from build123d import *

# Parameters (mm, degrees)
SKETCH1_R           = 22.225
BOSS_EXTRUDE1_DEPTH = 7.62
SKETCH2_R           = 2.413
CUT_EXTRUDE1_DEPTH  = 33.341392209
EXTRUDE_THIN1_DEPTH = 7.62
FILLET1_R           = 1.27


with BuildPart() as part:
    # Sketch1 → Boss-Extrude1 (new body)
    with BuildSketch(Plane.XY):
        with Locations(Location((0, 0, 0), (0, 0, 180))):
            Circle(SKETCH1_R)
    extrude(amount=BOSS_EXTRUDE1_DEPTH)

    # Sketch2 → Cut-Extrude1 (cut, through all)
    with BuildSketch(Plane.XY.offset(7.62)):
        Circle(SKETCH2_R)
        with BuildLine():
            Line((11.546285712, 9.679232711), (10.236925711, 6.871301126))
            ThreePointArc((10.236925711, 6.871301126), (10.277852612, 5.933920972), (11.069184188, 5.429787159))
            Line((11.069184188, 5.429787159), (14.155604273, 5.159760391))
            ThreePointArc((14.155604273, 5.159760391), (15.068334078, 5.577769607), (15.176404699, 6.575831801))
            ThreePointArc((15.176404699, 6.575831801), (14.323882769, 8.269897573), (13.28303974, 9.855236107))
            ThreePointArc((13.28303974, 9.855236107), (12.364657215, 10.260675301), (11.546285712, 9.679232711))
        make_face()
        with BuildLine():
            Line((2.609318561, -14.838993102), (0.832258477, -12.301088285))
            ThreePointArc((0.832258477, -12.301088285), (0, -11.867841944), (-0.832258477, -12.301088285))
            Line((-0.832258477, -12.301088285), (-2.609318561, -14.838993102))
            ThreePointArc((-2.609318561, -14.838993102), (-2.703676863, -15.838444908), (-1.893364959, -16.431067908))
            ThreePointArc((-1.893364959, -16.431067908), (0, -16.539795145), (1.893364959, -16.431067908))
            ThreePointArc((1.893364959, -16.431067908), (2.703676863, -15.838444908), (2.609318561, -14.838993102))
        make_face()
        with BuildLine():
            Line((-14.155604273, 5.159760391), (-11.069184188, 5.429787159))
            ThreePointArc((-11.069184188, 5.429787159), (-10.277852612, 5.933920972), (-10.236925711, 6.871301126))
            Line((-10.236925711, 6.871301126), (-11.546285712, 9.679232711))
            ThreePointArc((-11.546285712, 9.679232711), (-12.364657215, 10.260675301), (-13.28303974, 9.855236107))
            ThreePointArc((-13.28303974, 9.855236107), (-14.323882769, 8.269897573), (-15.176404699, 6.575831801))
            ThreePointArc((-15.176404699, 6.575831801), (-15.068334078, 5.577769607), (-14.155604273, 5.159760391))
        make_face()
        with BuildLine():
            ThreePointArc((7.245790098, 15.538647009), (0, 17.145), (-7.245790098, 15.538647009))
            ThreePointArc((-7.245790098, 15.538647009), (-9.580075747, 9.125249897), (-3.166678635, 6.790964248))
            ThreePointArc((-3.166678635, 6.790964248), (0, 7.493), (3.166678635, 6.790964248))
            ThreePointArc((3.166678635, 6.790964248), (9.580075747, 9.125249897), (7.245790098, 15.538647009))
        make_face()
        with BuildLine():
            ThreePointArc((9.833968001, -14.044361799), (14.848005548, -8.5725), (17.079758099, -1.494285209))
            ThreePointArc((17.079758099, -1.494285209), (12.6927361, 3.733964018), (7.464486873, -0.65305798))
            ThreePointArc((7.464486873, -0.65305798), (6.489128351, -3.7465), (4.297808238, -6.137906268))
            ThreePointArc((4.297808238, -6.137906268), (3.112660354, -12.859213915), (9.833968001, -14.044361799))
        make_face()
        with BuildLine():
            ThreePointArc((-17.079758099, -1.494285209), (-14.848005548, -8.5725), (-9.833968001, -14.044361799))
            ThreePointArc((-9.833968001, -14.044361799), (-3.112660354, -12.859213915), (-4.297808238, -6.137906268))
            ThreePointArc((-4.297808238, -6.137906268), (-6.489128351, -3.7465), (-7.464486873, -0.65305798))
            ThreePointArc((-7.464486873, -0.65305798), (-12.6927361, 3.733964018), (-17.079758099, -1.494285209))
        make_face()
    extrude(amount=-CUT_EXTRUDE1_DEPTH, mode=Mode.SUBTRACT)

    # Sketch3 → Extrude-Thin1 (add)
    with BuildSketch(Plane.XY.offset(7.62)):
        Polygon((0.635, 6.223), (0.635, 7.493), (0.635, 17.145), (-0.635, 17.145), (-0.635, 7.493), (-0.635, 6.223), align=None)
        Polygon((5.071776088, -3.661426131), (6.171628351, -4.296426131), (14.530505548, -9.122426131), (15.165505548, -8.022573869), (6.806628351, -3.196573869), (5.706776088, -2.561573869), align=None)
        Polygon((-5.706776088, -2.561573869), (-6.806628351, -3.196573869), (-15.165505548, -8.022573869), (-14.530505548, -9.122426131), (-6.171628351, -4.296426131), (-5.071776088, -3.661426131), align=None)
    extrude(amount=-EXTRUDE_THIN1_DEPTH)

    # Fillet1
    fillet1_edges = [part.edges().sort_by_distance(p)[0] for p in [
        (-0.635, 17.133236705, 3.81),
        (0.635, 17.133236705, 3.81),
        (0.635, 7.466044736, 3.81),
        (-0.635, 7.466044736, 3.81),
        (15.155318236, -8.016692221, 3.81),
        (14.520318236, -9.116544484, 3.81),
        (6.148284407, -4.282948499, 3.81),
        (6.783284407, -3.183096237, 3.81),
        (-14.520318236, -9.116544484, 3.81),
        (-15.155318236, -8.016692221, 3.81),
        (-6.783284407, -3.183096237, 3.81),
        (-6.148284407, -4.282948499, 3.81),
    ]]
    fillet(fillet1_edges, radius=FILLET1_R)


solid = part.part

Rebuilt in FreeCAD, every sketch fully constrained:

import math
import FreeCAD as App
import Part
import Sketcher

V = App.Vector
Q = App.Units.Quantity


def edges_at(feature, points):
    """Names of the edges that pass closest to the given points."""
    edges = feature.Shape.Edges
    near = lambda p: min(range(len(edges)), key=lambda i: edges[i].distToShape(Part.Vertex(*p))[0])
    return sorted({f"Edge{near(p) + 1}" for p in points})

doc = App.newDocument("Part")
body = doc.addObject("PartDesign::Body", "Body")

sketch1 = doc.addObject("Sketcher::SketchObject", "Sketch")
body.addObject(sketch1)
sketch1.AttachmentSupport = (doc.XY_Plane, [""])
sketch1.MapMode = "FlatFace"
sketch1.addGeometry(Part.Circle(V(0, 0, 0), V(0, 0, 1), 22.225), False)
sketch1.addConstraint([
    Sketcher.Constraint("Coincident", 0, 3, -1, 1),
    Sketcher.Constraint("Diameter", 0, Q("1.75 in")),
])
pad1 = doc.addObject("PartDesign::Pad", "Pad")
body.addObject(pad1)
pad1.Profile = sketch1
pad1.Length = Q("0.3 in")

sketch2 = doc.addObject("Sketcher::SketchObject", "Sketch001")
body.addObject(sketch2)
sketch2.AttachmentSupport = (doc.XY_Plane, [""])
sketch2.MapMode = "FlatFace"
sketch2.AttachmentOffset = App.Placement(V(0, 0, 0.3 * 25.4), App.Rotation())
sketch2.addGeometry([
    Part.Circle(V(0, 0, 0), V(0, 0, 1), 2.413),
    Part.LineSegment(V(11.546286, 9.679233, 0), V(10.236926, 6.871301, 0)),
    Part.ArcOfCircle(Part.Circle(V(11.157734, 6.441921, 0), V(0, 0, 1), 1.016), math.radians(155), math.radians(265)),
    Part.LineSegment(V(11.069184, 5.429787, 0), V(14.155604, 5.15976, 0)),
    Part.ArcOfCircle(Part.Circle(V(14.244155, 6.171894, 0), V(0, 0, 1), 1.016), math.radians(-95), math.radians(23.426753)),
    Part.ArcOfCircle(Part.Circle(V(0, 0, 0), V(0, 0, 1), 16.539795), math.radians(23.426753), math.radians(36.573247)),
    Part.ArcOfCircle(Part.Circle(V(12.467094, 9.249853, 0), V(0, 0, 1), 1.016), math.radians(36.573247), math.radians(155)),
    Part.LineSegment(V(2.609319, -14.838993, 0), V(0.832258, -12.301088, 0)),
    Part.ArcOfCircle(Part.Circle(V(0, -12.883842, 0), V(0, 0, 1), 1.016), math.radians(35), math.radians(145)),
    Part.LineSegment(V(-0.832258, -12.301088, 0), V(-2.609319, -14.838993, 0)),
    Part.ArcOfCircle(Part.Circle(V(-1.77706, -15.421747, 0), V(0, 0, 1), 1.016), math.radians(145), math.radians(263.426753)),
    Part.ArcOfCircle(Part.Circle(V(0, 0, 0), V(0, 0, 1), 16.539795), math.radians(-96.573247), math.radians(-83.426753)),
    Part.ArcOfCircle(Part.Circle(V(1.77706, -15.421747, 0), V(0, 0, 1), 1.016), math.radians(-83.426753), math.radians(35)),
    Part.LineSegment(V(-14.155604, 5.15976, 0), V(-11.069184, 5.429787, 0)),
    Part.ArcOfCircle(Part.Circle(V(-11.157734, 6.441921, 0), V(0, 0, 1), 1.016), math.radians(-85), math.radians(25)),
    Part.LineSegment(V(-10.236926, 6.871301, 0), V(-11.546286, 9.679233, 0)),
    Part.ArcOfCircle(Part.Circle(V(-12.467094, 9.249853, 0), V(0, 0, 1), 1.016), math.radians(25), math.radians(143.426753)),
    Part.ArcOfCircle(Part.Circle(V(0, 0, 0), V(0, 0, 1), 16.539795), math.radians(143.426753), math.radians(156.573247)),
    Part.ArcOfCircle(Part.Circle(V(-14.244155, 6.171894, 0), V(0, 0, 1), 1.016), math.radians(156.573247), math.radians(275)),
    Part.ArcOfCircle(Part.Circle(V(0, 0, 0), V(0, 0, 1), 17.145), math.radians(65), math.radians(115)),
    Part.ArcOfCircle(Part.Circle(V(-5.206234, 11.164806, 0), V(0, 0, 1), 4.826), math.radians(115), math.radians(295)),
    Part.ArcOfCircle(Part.Circle(V(0, 0, 0), V(0, 0, 1), 7.493), math.radians(65), math.radians(115)),
    Part.ArcOfCircle(Part.Circle(V(5.206234, 11.164806, 0), V(0, 0, 1), 4.826), math.radians(-115), math.radians(65)),
    Part.ArcOfCircle(Part.Circle(V(0, 0, 0), V(0, 0, 1), 17.145), math.radians(-55), math.radians(-5)),
    Part.ArcOfCircle(Part.Circle(V(12.272122, -1.073672, 0), V(0, 0, 1), 4.826), math.radians(-5), math.radians(175)),
    Part.ArcOfCircle(Part.Circle(V(0, 0, 0), V(0, 0, 1), 7.493), math.radians(-55), math.radians(-5)),
    Part.ArcOfCircle(Part.Circle(V(7.065888, -10.091134, 0), V(0, 0, 1), 4.826), math.radians(125), math.radians(305)),
    Part.ArcOfCircle(Part.Circle(V(0, 0, 0), V(0, 0, 1), 17.145), math.radians(-175), math.radians(-125)),
    Part.ArcOfCircle(Part.Circle(V(-7.065888, -10.091134, 0), V(0, 0, 1), 4.826), math.radians(-125), math.radians(55)),
    Part.ArcOfCircle(Part.Circle(V(0, 0, 0), V(0, 0, 1), 7.493), math.radians(-175), math.radians(-125)),
    Part.ArcOfCircle(Part.Circle(V(-12.272122, -1.073672, 0), V(0, 0, 1), 4.826), math.radians(5), math.radians(185)),
], False)
sketch2.addConstraint([
    Sketcher.Constraint("Tangent", 1, 2, 2, 1),
    Sketcher.Constraint("Tangent", 2, 2, 3, 1),
    Sketcher.Constraint("Tangent", 3, 2, 4, 1),
    Sketcher.Constraint("Tangent", 4, 2, 5, 1),
    Sketcher.Constraint("Tangent", 5, 2, 6, 1),
    Sketcher.Constraint("Tangent", 6, 2, 1, 1),
    Sketcher.Constraint("Tangent", 7, 2, 8, 1),
    Sketcher.Constraint("Tangent", 8, 2, 9, 1),
    Sketcher.Constraint("Tangent", 9, 2, 10, 1),
    Sketcher.Constraint("Tangent", 10, 2, 11, 1),
    Sketcher.Constraint("Tangent", 11, 2, 12, 1),
    Sketcher.Constraint("Tangent", 12, 2, 7, 1),
    Sketcher.Constraint("Tangent", 13, 2, 14, 1),
    Sketcher.Constraint("Tangent", 14, 2, 15, 1),
    Sketcher.Constraint("Tangent", 15, 2, 16, 1),
    Sketcher.Constraint("Tangent", 16, 2, 17, 1),
    Sketcher.Constraint("Tangent", 17, 2, 18, 1),
    Sketcher.Constraint("Tangent", 18, 2, 13, 1),
    Sketcher.Constraint("Tangent", 19, 2, 20, 1),
    Sketcher.Constraint("Tangent", 20, 2, 21, 2),
    Sketcher.Constraint("Tangent", 21, 1, 22, 1),
    Sketcher.Constraint("Tangent", 22, 2, 19, 1),
    Sketcher.Constraint("Tangent", 23, 2, 24, 1),
    Sketcher.Constraint("Tangent", 24, 2, 25, 2),
    Sketcher.Constraint("Tangent", 25, 1, 26, 1),
    Sketcher.Constraint("Tangent", 26, 2, 23, 1),
    Sketcher.Constraint("Tangent", 27, 2, 28, 1),
    Sketcher.Constraint("Tangent", 28, 2, 29, 2),
    Sketcher.Constraint("Tangent", 29, 1, 30, 1),
    Sketcher.Constraint("Tangent", 30, 2, 27, 1),
    Sketcher.Constraint("Coincident", 0, 3, -1, 1),
    Sketcher.Constraint("Coincident", 5, 3, -1, 1),
    Sketcher.Constraint("Coincident", 11, 3, -1, 1),
    Sketcher.Constraint("Coincident", 17, 3, -1, 1),
    Sketcher.Constraint("Coincident", 19, 3, -1, 1),
    Sketcher.Constraint("Coincident", 21, 3, -1, 1),
    Sketcher.Constraint("Coincident", 23, 3, -1, 1),
    Sketcher.Constraint("Coincident", 25, 3, -1, 1),
    Sketcher.Constraint("Coincident", 27, 3, -1, 1),
    Sketcher.Constraint("Coincident", 29, 3, -1, 1),
    Sketcher.Constraint("Equal", 2, 4),
    Sketcher.Constraint("Equal", 4, 6),
    Sketcher.Constraint("Equal", 6, 8),
    Sketcher.Constraint("Equal", 8, 10),
    Sketcher.Constraint("Equal", 5, 11),
    Sketcher.Constraint("Equal", 10, 12),
    Sketcher.Constraint("Equal", 12, 14),
    Sketcher.Constraint("Equal", 14, 16),
    Sketcher.Constraint("Equal", 11, 17),
    Sketcher.Constraint("Equal", 16, 18),
    Sketcher.Constraint("Equal", 19, 23),
    Sketcher.Constraint("Equal", 22, 24),
    Sketcher.Constraint("Equal", 23, 27),
    Sketcher.Constraint("Equal", 26, 28),
    Sketcher.Constraint("Symmetric", 2, 3, 14, 3, -2),
    Sketcher.Constraint("Symmetric", 7, 2, 8, 2, -2),
    Sketcher.Constraint("Horizontal", 6, 3, 16, 3),
    Sketcher.Constraint("Horizontal", 4, 3, 18, 3),
    Sketcher.Constraint("Horizontal", 20, 3, 22, 3),
    Sketcher.Constraint("Horizontal", 26, 3, 28, 3),
    Sketcher.Constraint("Horizontal", 24, 3, 30, 3),
    Sketcher.Constraint("Equal", 1, 3),
    Sketcher.Constraint("Equal", 3, 7),
    Sketcher.Constraint("Diameter", 0, Q("0.19 in")),
    Sketcher.Constraint("Radius", 2, Q("0.04 in")),
    Sketcher.Constraint("Radius", 20, Q("0.19 in")),
    Sketcher.Constraint("Angle", 1, Q("-115 deg")),
    Sketcher.Constraint("Angle", 3, Q("-5 deg")),
    Sketcher.Constraint("Angle", 7, Q("125 deg")),
    Sketcher.Constraint("Radius", 19, Q("0.675 in")),
    Sketcher.Constraint("Radius", 5, Q("16.539795 mm")),
    Sketcher.Constraint("DistanceY", -1, 1, 1, 2, Q("6.871301 mm")),
    Sketcher.Constraint("DistanceX", 14, 3, 20, 3, Q("5.9515 mm")),
    Sketcher.Constraint("DistanceY", 24, 3, -1, 1, Q("1.073672 mm")),
    Sketcher.Constraint("DistanceX", -1, 1, 26, 3, Q("7.065888 mm")),
])
pocket1 = doc.addObject("PartDesign::Pocket", "Pocket")
body.addObject(pocket1)
pocket1.Profile = sketch2
pocket1.Type = "ThroughAll"

sketch3 = doc.addObject("Sketcher::SketchObject", "Sketch002")
body.addObject(sketch3)
sketch3.AttachmentSupport = (doc.XY_Plane, [""])
sketch3.MapMode = "FlatFace"
sketch3.AttachmentOffset = App.Placement(V(0, 0, 0.3 * 25.4), App.Rotation())
sketch3.addGeometry([
    Part.LineSegment(V(0.635, 6.223, 0), V(0.635, 17.145, 0)),
    Part.LineSegment(V(0.635, 17.145, 0), V(-0.635, 17.145, 0)),
    Part.LineSegment(V(-0.635, 17.145, 0), V(-0.635, 6.223, 0)),
    Part.LineSegment(V(-0.635, 6.223, 0), V(0.635, 6.223, 0)),
    Part.LineSegment(V(5.071776, -3.661426, 0), V(6.171628, -4.296426, 0)),
    Part.LineSegment(V(6.171628, -4.296426, 0), V(14.530506, -9.122426, 0)),
    Part.LineSegment(V(14.530506, -9.122426, 0), V(15.165506, -8.022574, 0)),
    Part.LineSegment(V(15.165506, -8.022574, 0), V(6.806628, -3.196574, 0)),
    Part.LineSegment(V(6.806628, -3.196574, 0), V(5.706776, -2.561574, 0)),
    Part.LineSegment(V(5.706776, -2.561574, 0), V(5.071776, -3.661426, 0)),
    Part.LineSegment(V(-5.706776, -2.561574, 0), V(-6.806628, -3.196574, 0)),
    Part.LineSegment(V(-6.806628, -3.196574, 0), V(-15.165506, -8.022574, 0)),
    Part.LineSegment(V(-15.165506, -8.022574, 0), V(-14.530506, -9.122426, 0)),
    Part.LineSegment(V(-14.530506, -9.122426, 0), V(-6.171628, -4.296426, 0)),
    Part.LineSegment(V(-6.171628, -4.296426, 0), V(-5.071776, -3.661426, 0)),
    Part.LineSegment(V(-5.071776, -3.661426, 0), V(-5.706776, -2.561574, 0)),
], False)
sketch3.addConstraint([
    Sketcher.Constraint("Coincident", 0, 2, 1, 1),
    Sketcher.Constraint("Coincident", 1, 2, 2, 1),
    Sketcher.Constraint("Coincident", 2, 2, 3, 1),
    Sketcher.Constraint("Coincident", 3, 2, 0, 1),
    Sketcher.Constraint("Coincident", 4, 2, 5, 1),
    Sketcher.Constraint("Coincident", 5, 2, 6, 1),
    Sketcher.Constraint("Coincident", 6, 2, 7, 1),
    Sketcher.Constraint("Coincident", 7, 2, 8, 1),
    Sketcher.Constraint("Coincident", 8, 2, 9, 1),
    Sketcher.Constraint("Coincident", 9, 2, 4, 1),
    Sketcher.Constraint("Coincident", 10, 2, 11, 1),
    Sketcher.Constraint("Coincident", 11, 2, 12, 1),
    Sketcher.Constraint("Coincident", 12, 2, 13, 1),
    Sketcher.Constraint("Coincident", 13, 2, 14, 1),
    Sketcher.Constraint("Coincident", 14, 2, 15, 1),
    Sketcher.Constraint("Coincident", 15, 2, 10, 1),
    Sketcher.Constraint("Vertical", 0),
    Sketcher.Constraint("Horizontal", 1),
    Sketcher.Constraint("Vertical", 2),
    Sketcher.Constraint("Horizontal", 3),
    Sketcher.Constraint("Symmetric", 7, 2, 10, 2, -2),
    Sketcher.Constraint("Symmetric", 6, 2, 11, 2, -2),
    Sketcher.Constraint("Symmetric", 5, 2, 12, 2, -2),
    Sketcher.Constraint("Symmetric", 4, 2, 13, 2, -2),
    Sketcher.Constraint("Symmetric", 9, 2, 14, 2, -2),
    Sketcher.Constraint("Symmetric", 8, 2, 15, 2, -2),
    Sketcher.Constraint("Parallel", 4, 5),
    Sketcher.Constraint("Perpendicular", 5, 6),
    Sketcher.Constraint("Perpendicular", 6, 7),
    Sketcher.Constraint("Parallel", 7, 8),
    Sketcher.Constraint("Perpendicular", 8, 9),
    Sketcher.Constraint("Equal", 4, 6),
    Sketcher.Constraint("Equal", 5, 7),
    Sketcher.Constraint("Angle", 4, Q("-30 deg")),
    Sketcher.Constraint("DistanceX", 1, 2, 1, 1, Q("0.05 in")),
    Sketcher.Constraint("DistanceY", 0, 1, 0, 2, Q("0.43 in")),
    Sketcher.Constraint("Distance", 4, Q("0.05 in")),
    Sketcher.Constraint("Distance", 5, Q("0.38 in")),
    Sketcher.Constraint("DistanceX", -1, 1, 0, 2, Q("0.025 in")),
    Sketcher.Constraint("DistanceY", -1, 1, 0, 2, Q("0.675 in")),
    Sketcher.Constraint("DistanceX", -1, 1, 4, 2, Q("6.171628 mm")),
    Sketcher.Constraint("DistanceY", 4, 2, -1, 1, Q("4.296426 mm")),
])
pad2 = doc.addObject("PartDesign::Pad", "Pad001")
body.addObject(pad2)
pad2.Profile = sketch3
pad2.Length = Q("0.3 in")
pad2.Reversed = True
doc.recompute()

fillet = doc.addObject("PartDesign::Fillet", "Fillet")
body.addObject(fillet)
fillet.Base = (pad2, edges_at(pad2, [
    (-0.635, 17.133, 3.81),
    (0.635, 17.133, 3.81),
    (0.635, 7.466, 3.81),
    (-0.635, 7.466, 3.81),
    (15.155, -8.017, 3.81),
    (14.52, -9.117, 3.81),
    (6.148, -4.283, 3.81),
    (6.783, -3.183, 3.81),
    (-14.52, -9.117, 3.81),
    (-15.155, -8.017, 3.81),
    (-6.783, -3.183, 3.81),
    (-6.148, -4.283, 3.81),
]))
fillet.Radius = Q("0.05 in")

doc.recompute()
